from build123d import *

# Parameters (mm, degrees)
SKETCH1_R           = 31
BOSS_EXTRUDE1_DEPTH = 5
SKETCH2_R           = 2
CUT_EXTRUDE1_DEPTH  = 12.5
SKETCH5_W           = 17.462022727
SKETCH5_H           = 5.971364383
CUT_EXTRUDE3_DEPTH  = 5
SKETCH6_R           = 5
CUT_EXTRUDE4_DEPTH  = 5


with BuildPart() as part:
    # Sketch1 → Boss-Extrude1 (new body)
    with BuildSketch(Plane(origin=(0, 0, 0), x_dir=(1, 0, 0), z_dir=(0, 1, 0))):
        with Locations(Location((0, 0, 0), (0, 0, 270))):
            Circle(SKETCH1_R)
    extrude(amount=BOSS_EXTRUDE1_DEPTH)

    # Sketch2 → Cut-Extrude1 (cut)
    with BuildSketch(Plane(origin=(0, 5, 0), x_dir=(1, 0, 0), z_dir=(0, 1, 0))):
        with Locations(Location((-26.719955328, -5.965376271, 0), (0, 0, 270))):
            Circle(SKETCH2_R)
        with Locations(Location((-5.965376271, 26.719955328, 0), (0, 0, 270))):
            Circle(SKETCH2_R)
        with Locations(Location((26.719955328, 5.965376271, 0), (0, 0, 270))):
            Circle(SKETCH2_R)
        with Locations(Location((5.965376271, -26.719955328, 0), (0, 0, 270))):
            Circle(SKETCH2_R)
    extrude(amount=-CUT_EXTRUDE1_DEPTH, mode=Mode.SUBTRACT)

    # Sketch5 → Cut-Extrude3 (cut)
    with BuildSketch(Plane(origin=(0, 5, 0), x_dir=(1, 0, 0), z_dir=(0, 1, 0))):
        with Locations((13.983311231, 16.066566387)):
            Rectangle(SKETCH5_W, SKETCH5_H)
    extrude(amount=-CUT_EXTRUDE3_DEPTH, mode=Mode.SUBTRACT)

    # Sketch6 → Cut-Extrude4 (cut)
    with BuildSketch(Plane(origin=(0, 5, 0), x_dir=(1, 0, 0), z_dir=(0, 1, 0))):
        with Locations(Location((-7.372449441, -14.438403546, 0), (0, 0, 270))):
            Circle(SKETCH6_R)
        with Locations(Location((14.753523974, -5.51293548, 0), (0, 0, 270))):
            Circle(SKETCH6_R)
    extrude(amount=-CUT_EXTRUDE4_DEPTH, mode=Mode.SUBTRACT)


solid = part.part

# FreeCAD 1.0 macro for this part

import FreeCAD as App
import Part
import Sketcher

V = App.Vector
Q = App.Units.Quantity


def add_polygon(sketch, points):
    """Adds a closed chain of lines whose ends are joined by coincident constraints."""
    first, n = sketch.GeometryCount, len(points)
    for a, b in zip(points, points[1:] + points[:1]):
        sketch.addGeometry(Part.LineSegment(App.Vector(*a, 0), App.Vector(*b, 0)), False)
    for i in range(n):
        sketch.addConstraint(Sketcher.Constraint("Coincident", first + i, 2, first + (i + 1) % n, 1))

doc = App.newDocument("Part")
body = doc.addObject("PartDesign::Body", "Body")

# Sketch on XZ plane
sketch1 = body.newObject("Sketcher::SketchObject", "Sketch")
sketch1.AttachmentSupport = (doc.getObject("XZ_Plane"), [""])
sketch1.MapMode = "FlatFace"
sketch1.addGeometry(Part.Circle(V(0, 0, 0), V(0, 0, 1), 31), False)
sketch1.addConstraint([
    Sketcher.Constraint("Coincident", 0, 3, -1, 1),
    Sketcher.Constraint("Diameter", 0, Q("62 mm")),
])
pad1 = body.newObject("PartDesign::Pad", "Pad")
pad1.Profile = sketch1
pad1.Length = 5
pad1.Reversed = True

# Sketch on XZ plane
sketch2 = body.newObject("Sketcher::SketchObject", "Sketch001")
sketch2.AttachmentSupport = (doc.getObject("XZ_Plane"), [""])
sketch2.MapMode = "FlatFace"
sketch2.AttachmentOffset = App.Placement(V(0, 0, -5), App.Rotation())
sketch2.addGeometry([
    Part.Circle(V(-26.7, 6, 0), V(0, 0, 1), 2),
    Part.Circle(V(-6, -26.7, 0), V(0, 0, 1), 2),
    Part.Circle(V(26.7, -6, 0), V(0, 0, 1), 2),
    Part.Circle(V(6, 26.7, 0), V(0, 0, 1), 2),
], False)
sketch2.addConstraint([
    Sketcher.Constraint("Equal", 0, 1),
    Sketcher.Constraint("Equal", 1, 2),
    Sketcher.Constraint("Equal", 2, 3),
    Sketcher.Constraint("Symmetric", 0, 3, 2, 3, -1, 1),
    Sketcher.Constraint("Symmetric", 1, 3, 3, 3, -1, 1),
    Sketcher.Constraint("Diameter", 0, Q("4 mm")),
    Sketcher.Constraint("DistanceX", 0, 3, 1, 3, Q("20.754579 mm")),
    Sketcher.Constraint("DistanceY", 1, 3, 0, 3, Q("32.685332 mm")),
    Sketcher.Constraint("DistanceX", 1, 3, 2, 3, Q("32.685332 mm")),
    Sketcher.Constraint("DistanceY", 1, 3, 2, 3, Q("20.754579 mm")),
])
pocket1 = body.newObject("PartDesign::Pocket", "Pocket")
pocket1.Profile = sketch2
pocket1.Length = 12.5
pocket1.Reversed = True

# Sketch on XZ plane
sketch3 = body.newObject("Sketcher::SketchObject", "Sketch002")
sketch3.AttachmentSupport = (doc.getObject("XZ_Plane"), [""])
sketch3.MapMode = "FlatFace"
sketch3.AttachmentOffset = App.Placement(V(0, 0, -5), App.Rotation())
add_polygon(sketch3, [(5, -19), (5, -13), (23, -13), (23, -19)])  # lines 0-3
sketch3.addConstraint([
    Sketcher.Constraint("Vertical", 0),
    Sketcher.Constraint("Horizontal", 1),
    Sketcher.Constraint("Vertical", 2),
    Sketcher.Constraint("Horizontal", 3),
    Sketcher.Constraint("DistanceX", -1, 1, 0, 2, Q("5.2523 mm")),
    Sketcher.Constraint("DistanceX", 1, 1, 1, 2, Q("17.462023 mm")),
    Sketcher.Constraint("DistanceY", 0, 1, 0, 2, Q("5.971364 mm")),
    Sketcher.Constraint("DistanceY", 2, 2, -1, 1, Q("19.052249 mm")),
])
pocket2 = body.newObject("PartDesign::Pocket", "Pocket001")
pocket2.Profile = sketch3
pocket2.Length = 5
pocket2.Reversed = True

# Sketch on XZ plane
sketch4 = body.newObject("Sketcher::SketchObject", "Sketch003")
sketch4.AttachmentSupport = (doc.getObject("XZ_Plane"), [""])
sketch4.MapMode = "FlatFace"
sketch4.AttachmentOffset = App.Placement(V(0, 0, -5), App.Rotation())
sketch4.addGeometry([
    Part.Circle(V(-7, 14, 0), V(0, 0, 1), 5),
    Part.Circle(V(15, 6, 0), V(0, 0, 1), 5),
], False)
sketch4.addConstraint([
    Sketcher.Constraint("Equal", 0, 1),
    Sketcher.Constraint("Diameter", 0, Q("10 mm")),
    Sketcher.Constraint("DistanceX", 0, 3, -1, 1, Q("7.372449 mm")),
    Sketcher.Constraint("DistanceY", 1, 3, 0, 3, Q("8.925468 mm")),
    Sketcher.Constraint("DistanceY", -1, 1, 0, 3, Q("14.438404 mm")),
    Sketcher.Constraint("DistanceX", -1, 1, 1, 3, Q("14.753524 mm")),
])
pocket3 = body.newObject("PartDesign::Pocket", "Pocket002")
pocket3.Profile = sketch4
pocket3.Length = 5
pocket3.Reversed = True

doc.recompute()
